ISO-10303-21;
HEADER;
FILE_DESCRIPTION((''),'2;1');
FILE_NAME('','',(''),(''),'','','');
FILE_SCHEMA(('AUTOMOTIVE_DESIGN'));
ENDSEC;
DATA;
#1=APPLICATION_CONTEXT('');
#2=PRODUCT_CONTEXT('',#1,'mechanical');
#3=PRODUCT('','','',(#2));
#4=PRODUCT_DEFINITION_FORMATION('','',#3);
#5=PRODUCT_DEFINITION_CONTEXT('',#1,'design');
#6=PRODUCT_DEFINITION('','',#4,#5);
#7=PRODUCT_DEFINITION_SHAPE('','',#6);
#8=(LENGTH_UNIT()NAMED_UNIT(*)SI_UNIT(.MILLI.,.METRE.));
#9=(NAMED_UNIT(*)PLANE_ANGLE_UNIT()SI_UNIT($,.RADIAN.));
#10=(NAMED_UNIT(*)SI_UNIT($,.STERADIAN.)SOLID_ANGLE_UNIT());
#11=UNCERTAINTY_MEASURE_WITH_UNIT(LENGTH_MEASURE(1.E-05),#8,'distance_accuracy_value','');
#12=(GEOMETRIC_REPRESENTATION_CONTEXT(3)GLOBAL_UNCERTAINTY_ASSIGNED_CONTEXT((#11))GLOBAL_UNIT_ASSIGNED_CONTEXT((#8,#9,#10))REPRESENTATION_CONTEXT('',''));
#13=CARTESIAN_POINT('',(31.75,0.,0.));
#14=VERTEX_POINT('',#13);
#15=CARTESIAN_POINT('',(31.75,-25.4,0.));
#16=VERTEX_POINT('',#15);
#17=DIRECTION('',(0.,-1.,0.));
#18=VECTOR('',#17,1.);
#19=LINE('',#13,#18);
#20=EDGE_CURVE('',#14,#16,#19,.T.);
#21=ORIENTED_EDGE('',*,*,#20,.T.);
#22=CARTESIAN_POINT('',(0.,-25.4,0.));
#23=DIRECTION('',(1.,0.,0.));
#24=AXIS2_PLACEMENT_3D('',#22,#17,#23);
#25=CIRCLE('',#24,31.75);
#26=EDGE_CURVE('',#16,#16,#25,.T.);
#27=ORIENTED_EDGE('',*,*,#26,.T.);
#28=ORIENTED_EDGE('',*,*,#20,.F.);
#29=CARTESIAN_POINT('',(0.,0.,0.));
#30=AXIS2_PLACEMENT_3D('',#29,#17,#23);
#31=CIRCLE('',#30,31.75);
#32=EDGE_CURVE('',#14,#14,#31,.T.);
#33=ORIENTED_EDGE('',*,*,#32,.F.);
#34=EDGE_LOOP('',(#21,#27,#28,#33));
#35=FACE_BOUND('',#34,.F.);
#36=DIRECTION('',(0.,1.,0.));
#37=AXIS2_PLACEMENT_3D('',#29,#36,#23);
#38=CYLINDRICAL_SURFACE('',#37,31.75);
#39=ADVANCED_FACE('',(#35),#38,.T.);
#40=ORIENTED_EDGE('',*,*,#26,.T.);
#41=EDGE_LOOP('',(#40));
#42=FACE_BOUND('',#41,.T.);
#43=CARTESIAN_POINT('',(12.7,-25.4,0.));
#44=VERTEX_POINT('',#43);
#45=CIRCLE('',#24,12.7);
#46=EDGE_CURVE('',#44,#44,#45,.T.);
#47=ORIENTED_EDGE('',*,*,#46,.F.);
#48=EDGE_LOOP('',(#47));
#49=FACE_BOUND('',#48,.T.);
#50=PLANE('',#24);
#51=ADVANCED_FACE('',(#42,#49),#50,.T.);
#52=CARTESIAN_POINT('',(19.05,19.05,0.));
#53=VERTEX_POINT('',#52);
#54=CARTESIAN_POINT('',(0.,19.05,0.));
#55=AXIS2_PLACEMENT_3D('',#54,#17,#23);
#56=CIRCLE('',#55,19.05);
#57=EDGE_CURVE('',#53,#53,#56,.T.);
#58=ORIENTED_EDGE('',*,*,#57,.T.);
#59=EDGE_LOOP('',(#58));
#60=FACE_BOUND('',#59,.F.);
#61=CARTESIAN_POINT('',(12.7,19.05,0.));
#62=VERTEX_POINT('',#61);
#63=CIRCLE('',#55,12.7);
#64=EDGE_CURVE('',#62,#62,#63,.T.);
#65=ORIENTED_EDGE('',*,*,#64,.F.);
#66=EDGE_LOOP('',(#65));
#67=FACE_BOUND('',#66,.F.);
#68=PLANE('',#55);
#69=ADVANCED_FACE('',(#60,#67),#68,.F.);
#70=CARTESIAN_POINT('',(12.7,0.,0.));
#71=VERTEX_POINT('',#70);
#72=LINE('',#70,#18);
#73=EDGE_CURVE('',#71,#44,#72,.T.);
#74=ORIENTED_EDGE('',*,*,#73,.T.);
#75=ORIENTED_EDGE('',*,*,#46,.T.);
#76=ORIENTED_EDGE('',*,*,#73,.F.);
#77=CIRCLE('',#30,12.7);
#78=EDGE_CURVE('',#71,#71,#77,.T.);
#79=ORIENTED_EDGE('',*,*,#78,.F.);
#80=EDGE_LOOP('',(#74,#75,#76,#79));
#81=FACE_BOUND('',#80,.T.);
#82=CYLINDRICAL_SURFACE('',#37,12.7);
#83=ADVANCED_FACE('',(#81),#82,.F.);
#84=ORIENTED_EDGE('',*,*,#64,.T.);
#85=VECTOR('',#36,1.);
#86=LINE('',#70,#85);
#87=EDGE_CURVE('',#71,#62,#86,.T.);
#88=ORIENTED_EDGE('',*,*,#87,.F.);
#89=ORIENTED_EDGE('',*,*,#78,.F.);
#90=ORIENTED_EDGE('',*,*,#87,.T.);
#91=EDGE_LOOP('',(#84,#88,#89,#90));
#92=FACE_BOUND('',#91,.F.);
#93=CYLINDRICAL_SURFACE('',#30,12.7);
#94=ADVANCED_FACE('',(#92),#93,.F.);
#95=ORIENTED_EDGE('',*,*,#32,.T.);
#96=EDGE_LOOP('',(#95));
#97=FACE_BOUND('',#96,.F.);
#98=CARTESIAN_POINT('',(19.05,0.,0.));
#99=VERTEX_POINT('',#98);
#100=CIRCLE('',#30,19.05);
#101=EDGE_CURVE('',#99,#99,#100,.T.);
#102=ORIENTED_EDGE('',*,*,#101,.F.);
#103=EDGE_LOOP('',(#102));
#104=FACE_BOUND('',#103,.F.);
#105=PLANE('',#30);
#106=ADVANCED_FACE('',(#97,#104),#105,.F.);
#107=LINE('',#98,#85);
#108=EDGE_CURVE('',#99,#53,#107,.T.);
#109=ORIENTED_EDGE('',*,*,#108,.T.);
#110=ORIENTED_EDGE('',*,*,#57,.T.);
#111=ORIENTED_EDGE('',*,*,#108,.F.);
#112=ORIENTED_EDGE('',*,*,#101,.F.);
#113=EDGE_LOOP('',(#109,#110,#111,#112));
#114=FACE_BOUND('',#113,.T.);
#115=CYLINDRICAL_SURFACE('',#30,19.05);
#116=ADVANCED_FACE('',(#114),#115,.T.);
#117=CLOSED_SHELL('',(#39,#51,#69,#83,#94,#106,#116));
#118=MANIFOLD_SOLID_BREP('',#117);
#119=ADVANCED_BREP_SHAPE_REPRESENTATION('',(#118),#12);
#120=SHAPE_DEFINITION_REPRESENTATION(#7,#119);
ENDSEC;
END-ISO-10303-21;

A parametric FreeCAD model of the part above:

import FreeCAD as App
import Part
import Sketcher
from FreeCAD import Vector
Q = App.Units.Quantity

doc = App.newDocument("Part")
body = doc.addObject("PartDesign::Body", "Body")

# Sketch on XZ plane
sketch1 = body.newObject("Sketcher::SketchObject", "Sketch")
sketch1.AttachmentSupport = (doc.getObject("XZ_Plane"), [""])
sketch1.MapMode = "FlatFace"
sketch1.addGeometry([
    Part.Circle(Vector(0, 0, 0), Vector(0, 0, 1), 32),
    Part.Circle(Vector(0, 0, 0), Vector(0, 0, 1), 13),
], False)
sketch1.addConstraint([
    Sketcher.Constraint("Coincident", 0, 3, -1, 1),
    Sketcher.Constraint("Coincident", 1, 3, -1, 1),
    Sketcher.Constraint("Diameter", 1, Q("1 in")),
    Sketcher.Constraint("Diameter", 0, Q("2.5 in")),
])
pad1 = body.newObject("PartDesign::Pad", "Pad")
pad1.Profile = sketch1
pad1.Length = Q("1 in")

# Sketch on XZ plane
sketch2 = body.newObject("Sketcher::SketchObject", "Sketch001")
sketch2.AttachmentSupport = (doc.getObject("XZ_Plane"), [""])
sketch2.MapMode = "FlatFace"
sketch2.addGeometry([
    Part.Circle(Vector(0, 0, 0), Vector(0, 0, 1), 19),
    Part.Circle(Vector(0, 0, 0), Vector(0, 0, 1), 13),
], False)
sketch2.addConstraint([
    Sketcher.Constraint("Coincident", 0, 3, -1, 1),
    Sketcher.Constraint("Coincident", 1, 3, -1, 1),
    Sketcher.Constraint("Diameter", 1, Q("1 in")),
    Sketcher.Constraint("Diameter", 0, Q("1.5 in")),
])
pad2 = body.newObject("PartDesign::Pad", "Pad001")
pad2.Profile = sketch2
pad2.Length = Q("0.75 in")
pad2.Reversed = True

doc.recompute()
